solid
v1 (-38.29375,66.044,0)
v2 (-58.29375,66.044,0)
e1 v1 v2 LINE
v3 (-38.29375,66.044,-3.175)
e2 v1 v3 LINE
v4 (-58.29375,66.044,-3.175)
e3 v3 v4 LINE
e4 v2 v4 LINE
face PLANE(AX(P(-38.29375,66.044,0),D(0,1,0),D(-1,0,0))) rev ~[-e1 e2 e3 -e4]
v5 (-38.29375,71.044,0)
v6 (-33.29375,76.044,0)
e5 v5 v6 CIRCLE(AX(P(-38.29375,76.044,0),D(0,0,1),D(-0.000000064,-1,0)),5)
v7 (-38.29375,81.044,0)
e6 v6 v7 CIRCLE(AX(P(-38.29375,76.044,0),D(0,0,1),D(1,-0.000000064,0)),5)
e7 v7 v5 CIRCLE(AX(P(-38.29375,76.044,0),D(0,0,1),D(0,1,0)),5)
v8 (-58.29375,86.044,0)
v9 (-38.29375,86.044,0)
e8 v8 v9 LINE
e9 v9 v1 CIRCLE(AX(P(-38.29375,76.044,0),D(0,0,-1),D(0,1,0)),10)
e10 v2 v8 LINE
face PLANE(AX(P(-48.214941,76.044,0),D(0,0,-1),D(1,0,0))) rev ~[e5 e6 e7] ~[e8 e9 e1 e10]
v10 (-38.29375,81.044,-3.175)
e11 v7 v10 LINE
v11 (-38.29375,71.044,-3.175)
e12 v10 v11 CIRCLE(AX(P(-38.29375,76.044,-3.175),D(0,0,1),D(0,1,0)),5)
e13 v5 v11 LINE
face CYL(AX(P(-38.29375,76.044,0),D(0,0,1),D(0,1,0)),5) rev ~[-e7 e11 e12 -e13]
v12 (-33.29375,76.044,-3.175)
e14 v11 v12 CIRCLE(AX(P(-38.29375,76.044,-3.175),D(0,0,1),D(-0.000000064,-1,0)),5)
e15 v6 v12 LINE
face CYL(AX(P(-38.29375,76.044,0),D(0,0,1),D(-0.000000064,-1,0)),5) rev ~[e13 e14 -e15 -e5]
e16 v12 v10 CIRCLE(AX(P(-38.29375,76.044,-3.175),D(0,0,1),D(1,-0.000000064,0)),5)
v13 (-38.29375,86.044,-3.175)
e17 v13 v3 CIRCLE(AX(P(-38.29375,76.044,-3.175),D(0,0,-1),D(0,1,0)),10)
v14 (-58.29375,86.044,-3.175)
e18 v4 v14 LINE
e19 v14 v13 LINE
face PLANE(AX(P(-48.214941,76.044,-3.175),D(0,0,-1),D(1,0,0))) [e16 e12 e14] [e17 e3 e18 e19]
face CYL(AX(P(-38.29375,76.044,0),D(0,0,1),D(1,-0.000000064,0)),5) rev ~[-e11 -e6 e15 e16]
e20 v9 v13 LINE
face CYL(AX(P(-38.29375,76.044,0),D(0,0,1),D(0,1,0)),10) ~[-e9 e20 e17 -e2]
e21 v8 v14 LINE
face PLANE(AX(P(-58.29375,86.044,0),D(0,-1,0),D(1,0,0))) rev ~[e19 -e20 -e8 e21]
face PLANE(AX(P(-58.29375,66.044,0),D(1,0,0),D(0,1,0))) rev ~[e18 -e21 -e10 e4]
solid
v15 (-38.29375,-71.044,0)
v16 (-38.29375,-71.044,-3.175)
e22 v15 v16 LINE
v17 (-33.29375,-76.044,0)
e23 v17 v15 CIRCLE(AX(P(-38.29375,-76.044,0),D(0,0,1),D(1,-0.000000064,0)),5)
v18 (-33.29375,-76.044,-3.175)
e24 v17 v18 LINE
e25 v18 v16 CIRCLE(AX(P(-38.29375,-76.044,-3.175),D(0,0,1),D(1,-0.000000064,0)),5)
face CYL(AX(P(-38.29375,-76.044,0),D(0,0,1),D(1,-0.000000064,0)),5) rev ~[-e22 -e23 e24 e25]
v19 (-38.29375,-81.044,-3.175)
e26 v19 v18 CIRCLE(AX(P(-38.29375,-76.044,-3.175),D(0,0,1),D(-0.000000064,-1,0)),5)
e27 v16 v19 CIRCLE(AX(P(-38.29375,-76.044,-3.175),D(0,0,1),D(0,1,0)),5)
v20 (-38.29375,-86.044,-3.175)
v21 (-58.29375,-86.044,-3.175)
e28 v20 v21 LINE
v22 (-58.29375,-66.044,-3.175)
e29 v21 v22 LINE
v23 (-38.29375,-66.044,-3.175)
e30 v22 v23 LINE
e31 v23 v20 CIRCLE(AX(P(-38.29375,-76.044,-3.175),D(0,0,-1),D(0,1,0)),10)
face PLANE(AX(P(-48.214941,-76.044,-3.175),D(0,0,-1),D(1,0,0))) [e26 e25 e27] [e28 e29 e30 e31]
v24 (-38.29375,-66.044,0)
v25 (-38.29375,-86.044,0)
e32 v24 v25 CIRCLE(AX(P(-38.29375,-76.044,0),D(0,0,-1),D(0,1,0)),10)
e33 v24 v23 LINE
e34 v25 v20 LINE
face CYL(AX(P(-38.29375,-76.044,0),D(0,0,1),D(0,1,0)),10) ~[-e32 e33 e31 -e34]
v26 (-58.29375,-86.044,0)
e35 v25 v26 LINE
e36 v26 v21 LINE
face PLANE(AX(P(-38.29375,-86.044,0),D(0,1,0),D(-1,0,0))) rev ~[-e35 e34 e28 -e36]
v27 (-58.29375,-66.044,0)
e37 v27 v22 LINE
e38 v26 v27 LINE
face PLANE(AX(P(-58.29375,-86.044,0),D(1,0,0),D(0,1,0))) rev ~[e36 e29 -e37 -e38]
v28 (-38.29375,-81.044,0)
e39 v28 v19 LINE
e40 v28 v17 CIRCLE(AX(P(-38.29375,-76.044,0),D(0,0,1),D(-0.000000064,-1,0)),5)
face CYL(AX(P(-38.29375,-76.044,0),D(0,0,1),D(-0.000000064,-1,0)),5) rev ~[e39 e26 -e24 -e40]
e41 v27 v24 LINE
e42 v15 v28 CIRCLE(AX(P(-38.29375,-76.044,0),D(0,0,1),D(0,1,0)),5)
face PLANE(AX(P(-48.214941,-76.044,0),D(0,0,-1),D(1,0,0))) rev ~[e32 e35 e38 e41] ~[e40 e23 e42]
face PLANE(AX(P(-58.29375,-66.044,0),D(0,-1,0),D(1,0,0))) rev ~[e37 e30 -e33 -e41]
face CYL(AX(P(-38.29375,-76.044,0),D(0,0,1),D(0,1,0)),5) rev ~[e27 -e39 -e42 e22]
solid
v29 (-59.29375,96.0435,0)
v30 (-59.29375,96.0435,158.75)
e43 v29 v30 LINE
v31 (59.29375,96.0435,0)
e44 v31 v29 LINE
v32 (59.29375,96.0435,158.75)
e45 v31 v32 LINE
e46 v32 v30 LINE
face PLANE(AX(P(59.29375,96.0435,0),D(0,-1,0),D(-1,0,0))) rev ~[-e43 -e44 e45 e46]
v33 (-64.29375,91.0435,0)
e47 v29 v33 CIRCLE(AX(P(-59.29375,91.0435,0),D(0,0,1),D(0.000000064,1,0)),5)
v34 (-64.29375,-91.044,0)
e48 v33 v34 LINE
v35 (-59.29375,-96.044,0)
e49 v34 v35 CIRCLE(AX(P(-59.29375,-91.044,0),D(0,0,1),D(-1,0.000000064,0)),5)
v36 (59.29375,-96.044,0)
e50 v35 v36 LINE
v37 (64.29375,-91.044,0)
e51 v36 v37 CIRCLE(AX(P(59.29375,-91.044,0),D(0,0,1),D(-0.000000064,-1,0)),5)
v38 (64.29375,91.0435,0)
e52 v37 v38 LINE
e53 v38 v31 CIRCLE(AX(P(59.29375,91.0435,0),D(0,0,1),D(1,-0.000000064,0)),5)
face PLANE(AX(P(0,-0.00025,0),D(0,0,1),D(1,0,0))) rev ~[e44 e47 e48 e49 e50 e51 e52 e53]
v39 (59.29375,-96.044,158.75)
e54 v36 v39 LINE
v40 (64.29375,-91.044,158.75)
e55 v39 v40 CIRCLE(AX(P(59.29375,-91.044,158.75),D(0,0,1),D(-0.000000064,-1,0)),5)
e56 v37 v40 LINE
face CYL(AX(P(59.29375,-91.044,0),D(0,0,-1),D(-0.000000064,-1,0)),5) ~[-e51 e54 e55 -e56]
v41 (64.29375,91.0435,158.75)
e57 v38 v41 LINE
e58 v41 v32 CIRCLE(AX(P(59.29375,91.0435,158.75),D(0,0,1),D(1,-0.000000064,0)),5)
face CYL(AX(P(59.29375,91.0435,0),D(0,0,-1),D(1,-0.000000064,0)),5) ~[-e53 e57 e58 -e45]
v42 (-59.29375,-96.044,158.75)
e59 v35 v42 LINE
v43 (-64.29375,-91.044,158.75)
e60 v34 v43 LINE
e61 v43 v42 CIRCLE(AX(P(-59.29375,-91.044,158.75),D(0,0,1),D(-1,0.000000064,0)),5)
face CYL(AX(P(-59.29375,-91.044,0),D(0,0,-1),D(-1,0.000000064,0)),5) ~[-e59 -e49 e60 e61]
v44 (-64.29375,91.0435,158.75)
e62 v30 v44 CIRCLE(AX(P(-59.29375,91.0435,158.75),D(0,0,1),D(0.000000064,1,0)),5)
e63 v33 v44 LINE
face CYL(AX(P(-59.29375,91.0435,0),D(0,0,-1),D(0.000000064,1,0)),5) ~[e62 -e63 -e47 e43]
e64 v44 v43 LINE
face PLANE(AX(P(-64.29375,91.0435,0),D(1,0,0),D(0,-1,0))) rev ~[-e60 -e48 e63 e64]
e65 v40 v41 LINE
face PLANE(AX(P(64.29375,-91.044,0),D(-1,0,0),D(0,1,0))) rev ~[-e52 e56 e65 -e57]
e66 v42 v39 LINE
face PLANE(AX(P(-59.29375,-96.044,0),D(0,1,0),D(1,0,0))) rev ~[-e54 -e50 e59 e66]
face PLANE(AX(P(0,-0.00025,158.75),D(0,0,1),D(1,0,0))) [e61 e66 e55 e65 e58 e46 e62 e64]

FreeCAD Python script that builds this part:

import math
import FreeCAD as App
import Part
import Sketcher

V = App.Vector

doc = App.newDocument("Part")
params = doc.addObject("Spreadsheet::Sheet", "Params")
for row, (alias, value) in enumerate([
    ("sketch1_radius", "5 mm"),
    ("pad1_length", "158.75 mm"),
    ("sketch2_radius", "10 mm"),
    ("sketch2_radius2", "5 mm"),
    ("pad2_length", "3.175 mm"),
], start=1):
    params.set(f"A{row}", alias)
    params.set(f"B{row}", "=" + value)
    params.setAlias(f"B{row}", alias)

body = doc.addObject("PartDesign::Body", "Body")

# Sketch on XY plane
sketch1 = body.newObject("Sketcher::SketchObject", "Sketch")
sketch1.AttachmentSupport = (doc.getObject("XY_Plane"), [""])
sketch1.MapMode = "FlatFace"
sketch1.addGeometry([
    Part.ArcOfCircle(Part.Circle(V(-59.3, -91, 0), V(0, 0, 1), 5), math.radians(180), math.radians(270)),  # 0
    Part.LineSegment(V(-59.3, -96, 0), V(59.3, -96, 0)),  # 1
    Part.ArcOfCircle(Part.Circle(V(59.3, -91, 0), V(0, 0, 1), 5), math.radians(-90), math.radians(0)),  # 2
    Part.LineSegment(V(64.3, -91, 0), V(64.3, 91, 0)),  # 3
    Part.ArcOfCircle(Part.Circle(V(59.3, 91, 0), V(0, 0, 1), 5), math.radians(0), math.radians(90)),  # 4
    Part.LineSegment(V(59.3, 96, 0), V(-59.3, 96, 0)),  # 5
    Part.ArcOfCircle(Part.Circle(V(-59.3, 91, 0), V(0, 0, 1), 5), math.radians(90), math.radians(180)),  # 6
    Part.LineSegment(V(-64.3, 91, 0), V(-64.3, -91, 0)),  # 7
], False)
sketch1.addConstraint([
    Sketcher.Constraint("Tangent", 0, 2, 1, 1),
    Sketcher.Constraint("Tangent", 1, 2, 2, 1),
    Sketcher.Constraint("Tangent", 2, 2, 3, 1),
    Sketcher.Constraint("Tangent", 3, 2, 4, 1),
    Sketcher.Constraint("Tangent", 4, 2, 5, 1),
    Sketcher.Constraint("Tangent", 5, 2, 6, 1),
    Sketcher.Constraint("Tangent", 6, 2, 7, 1),
    Sketcher.Constraint("Tangent", 7, 2, 0, 1),
    Sketcher.Constraint("Horizontal", 1),
    Sketcher.Constraint("Vertical", 3),
    Sketcher.Constraint("Horizontal", 5),
    Sketcher.Constraint("Vertical", 7),
    Sketcher.Constraint("Equal", 0, 2),
    Sketcher.Constraint("Equal", 2, 4),
    Sketcher.Constraint("Equal", 4, 6),
    Sketcher.Constraint("Radius", 0, 5.0),
    Sketcher.Constraint("DistanceX", 1, 1, 1, 2, 118.5875),
    Sketcher.Constraint("DistanceY", 3, 1, 3, 2, 182.0875),
    Sketcher.Constraint("DistanceY", 0, 3, -1, 1, 91.044),
    Sketcher.Constraint("DistanceX", 0, 3, -1, 1, 59.29375),
])
sketch1.setExpression("Constraints[15]", "Params.sketch1_radius")
pad1 = body.newObject("PartDesign::Pad", "Pad")
pad1.Profile = sketch1
pad1.setExpression("Length", "Params.pad1_length")
body2 = doc.addObject("PartDesign::Body", "Body001")
body2.AllowCompound = True

# Sketch on XY plane
sketch2 = body2.newObject("Sketcher::SketchObject", "Sketch001")
sketch2.AttachmentSupport = (doc.getObject("XY_Plane001"), [""])
sketch2.MapMode = "FlatFace"
sketch2.addGeometry([
    Part.LineSegment(V(-38.3, -86, 0), V(-58.3, -86, 0)),  # 0
    Part.LineSegment(V(-58.3, -86, 0), V(-58.3, -66, 0)),  # 1
    Part.LineSegment(V(-58.3, -66, 0), V(-38.3, -66, 0)),  # 2
    Part.ArcOfCircle(Part.Circle(V(-38.3, -76, 0), V(0, 0, 1), 10), math.radians(-90), math.radians(90)),  # 3
    Part.ArcOfCircle(Part.Circle(V(-38.3, -76, 0), V(0, 0, 1), 5), math.radians(90), math.radians(270)),  # 4
    Part.ArcOfCircle(Part.Circle(V(-38.3, -76, 0), V(0, 0, 1), 5), math.radians(-90), math.radians(0)),  # 5
    Part.ArcOfCircle(Part.Circle(V(-38.3, -76, 0), V(0, 0, 1), 5), math.radians(0), math.radians(90)),  # 6
    Part.LineSegment(V(-58.3, 86, 0), V(-38.3, 86, 0)),  # 7
    Part.ArcOfCircle(Part.Circle(V(-38.3, 76, 0), V(0, 0, 1), 10), math.radians(-90), math.radians(90)),  # 8
    Part.LineSegment(V(-38.3, 66, 0), V(-58.3, 66, 0)),  # 9
    Part.LineSegment(V(-58.3, 66, 0), V(-58.3, 86, 0)),  # 10
    Part.ArcOfCircle(Part.Circle(V(-38.3, 76, 0), V(0, 0, 1), 5), math.radians(90), math.radians(270)),  # 11
    Part.ArcOfCircle(Part.Circle(V(-38.3, 76, 0), V(0, 0, 1), 5), math.radians(-90), math.radians(0)),  # 12
    Part.ArcOfCircle(Part.Circle(V(-38.3, 76, 0), V(0, 0, 1), 5), math.radians(0), math.radians(90)),  # 13
], False)
sketch2.addConstraint([
    Sketcher.Constraint("Coincident", 0, 2, 1, 1),
    Sketcher.Constraint("Coincident", 1, 2, 2, 1),
    Sketcher.Constraint("Tangent", 2, 2, 3, 2),
    Sketcher.Constraint("Tangent", 3, 1, 0, 1),
    Sketcher.Constraint("Tangent", 4, 2, 5, 1),
    Sketcher.Constraint("Tangent", 5, 2, 6, 1),
    Sketcher.Constraint("Tangent", 6, 2, 4, 1),
    Sketcher.Constraint("Tangent", 7, 2, 8, 2),
    Sketcher.Constraint("Tangent", 8, 1, 9, 1),
    Sketcher.Constraint("Coincident", 9, 2, 10, 1),
    Sketcher.Constraint("Coincident", 10, 2, 7, 1),
    Sketcher.Constraint("Tangent", 11, 2, 12, 1),
    Sketcher.Constraint("Tangent", 12, 2, 13, 1),
    Sketcher.Constraint("Tangent", 13, 2, 11, 1),
    Sketcher.Constraint("Horizontal", 0),
    Sketcher.Constraint("Vertical", 1),
    Sketcher.Constraint("Horizontal", 2),
    Sketcher.Constraint("Horizontal", 7),
    Sketcher.Constraint("Horizontal", 9),
    Sketcher.Constraint("Vertical", 10),
    Sketcher.Constraint("Coincident", 4, 3, 3, 3),
    Sketcher.Constraint("Coincident", 11, 3, 8, 3),
    Sketcher.Constraint("Equal", 3, 8),
    Sketcher.Constraint("Equal", 6, 11),
    Sketcher.Constraint("Symmetric", 3, 3, 8, 3, -1),
    Sketcher.Constraint("Horizontal", 6, 3, 5, 2),
    Sketcher.Constraint("Horizontal", 13, 3, 12, 2),
    Sketcher.Constraint("Vertical", 3, 1, 4, 2),
    Sketcher.Constraint("Vertical", 4, 2, 6, 2),
    Sketcher.Constraint("Vertical", 1, 2, 9, 2),
    Sketcher.Constraint("Vertical", 8, 1, 11, 2),
    Sketcher.Constraint("Vertical", 11, 2, 13, 2),
    Sketcher.Constraint("Equal", 9, 1),
    Sketcher.Constraint("Radius", 3, 10.0),
    Sketcher.Constraint("Radius", 4, 5.0),
    Sketcher.Constraint("DistanceY", 3, 3, -1, 1, 76.044),
    Sketcher.Constraint("DistanceX", 3, 3, -1, 1, 38.29375),
])
sketch2.setExpression("Constraints[33]", "Params.sketch2_radius")
sketch2.setExpression("Constraints[34]", "Params.sketch2_radius2")
pad2 = body2.newObject("PartDesign::Pad", "Pad001")
pad2.Profile = sketch2
pad2.setExpression("Length", "Params.pad2_length")
pad2.Reversed = True

doc.recompute()
